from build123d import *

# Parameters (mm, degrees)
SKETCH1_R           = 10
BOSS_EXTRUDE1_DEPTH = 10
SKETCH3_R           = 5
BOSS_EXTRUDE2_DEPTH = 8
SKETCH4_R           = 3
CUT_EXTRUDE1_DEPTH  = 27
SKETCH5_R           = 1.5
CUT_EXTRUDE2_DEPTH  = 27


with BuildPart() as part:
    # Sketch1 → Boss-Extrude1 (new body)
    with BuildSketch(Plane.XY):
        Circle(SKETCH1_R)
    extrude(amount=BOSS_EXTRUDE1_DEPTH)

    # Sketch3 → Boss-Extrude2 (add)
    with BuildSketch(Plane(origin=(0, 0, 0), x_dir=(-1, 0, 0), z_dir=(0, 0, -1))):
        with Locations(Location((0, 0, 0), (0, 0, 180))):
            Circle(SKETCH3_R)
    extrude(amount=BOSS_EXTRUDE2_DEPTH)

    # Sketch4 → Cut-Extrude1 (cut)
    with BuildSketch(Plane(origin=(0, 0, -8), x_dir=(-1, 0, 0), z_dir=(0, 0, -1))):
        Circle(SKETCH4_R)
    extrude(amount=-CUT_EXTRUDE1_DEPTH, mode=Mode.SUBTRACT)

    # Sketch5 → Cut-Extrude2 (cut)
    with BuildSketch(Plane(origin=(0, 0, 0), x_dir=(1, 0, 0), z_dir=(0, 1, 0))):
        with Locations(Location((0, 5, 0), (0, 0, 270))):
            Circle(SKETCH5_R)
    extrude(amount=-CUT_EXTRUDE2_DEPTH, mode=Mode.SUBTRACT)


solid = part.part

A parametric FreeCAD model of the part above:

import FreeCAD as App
import Part
import Sketcher

doc = App.newDocument("Part")
body = doc.addObject("PartDesign::Body", "Body")

sketch1 = body.newObject("Sketcher::SketchObject", "Sketch")
sketch1.AttachmentSupport = (doc.getObject("XY_Plane"), [""])
sketch1.MapMode = "FlatFace"
sketch1.addGeometry(Part.Circle(App.Vector(0, 0, 0), App.Vector(0, 0, 1), 10), False)
sketch1.addConstraint([
    Sketcher.Constraint("Coincident", 0, 3, -1, 1),
    Sketcher.Constraint("Diameter", 0, 20.0),
])
pad1 = body.newObject("PartDesign::Pad", "Pad")
pad1.Profile = sketch1
pad1.Length = 10

sketch2 = body.newObject("Sketcher::SketchObject", "Sketch001")
sketch2.AttachmentSupport = (doc.getObject("XY_Plane"), [""])
sketch2.MapMode = "FlatFace"
sketch2.addGeometry(Part.Circle(App.Vector(0, 0, 0), App.Vector(0, 0, 1), 5), False)
sketch2.addConstraint([
    Sketcher.Constraint("Coincident", 0, 3, -1, 1),
    Sketcher.Constraint("Diameter", 0, 10.0),
])
pad2 = body.newObject("PartDesign::Pad", "Pad001")
pad2.Profile = sketch2
pad2.Length = 8
pad2.Reversed = True

sketch3 = body.newObject("Sketcher::SketchObject", "Sketch002")
sketch3.AttachmentSupport = (doc.getObject("XY_Plane"), [""])
sketch3.MapMode = "FlatFace"
sketch3.AttachmentOffset = App.Placement(App.Vector(0, 0, -8), App.Rotation())
sketch3.addGeometry(Part.Circle(App.Vector(0, 0, 0), App.Vector(0, 0, 1), 3), False)
sketch3.addConstraint([
    Sketcher.Constraint("Coincident", 0, 3, -1, 1),
    Sketcher.Constraint("Diameter", 0, 6.0),
])
pocket1 = body.newObject("PartDesign::Pocket", "Pocket")
pocket1.Profile = sketch3
pocket1.Length = 27
pocket1.Reversed = True

sketch4 = body.newObject("Sketcher::SketchObject", "Sketch003")
sketch4.AttachmentSupport = (doc.getObject("XZ_Plane"), [""])
sketch4.MapMode = "FlatFace"
sketch4.addGeometry(Part.Circle(App.Vector(0, -5, 0), App.Vector(0, 0, 1), 1.5), False)
sketch4.addConstraint([
    Sketcher.Constraint("PointOnObject", 0, 3, -2),
    Sketcher.Constraint("Diameter", 0, 3.0),
    Sketcher.Constraint("DistanceY", 0, 3, -1, 1, 5.0),
])
pocket2 = body.newObject("PartDesign::Pocket", "Pocket001")
pocket2.Profile = sketch4
pocket2.Length = 27
pocket2.Reversed = True

doc.recompute()
